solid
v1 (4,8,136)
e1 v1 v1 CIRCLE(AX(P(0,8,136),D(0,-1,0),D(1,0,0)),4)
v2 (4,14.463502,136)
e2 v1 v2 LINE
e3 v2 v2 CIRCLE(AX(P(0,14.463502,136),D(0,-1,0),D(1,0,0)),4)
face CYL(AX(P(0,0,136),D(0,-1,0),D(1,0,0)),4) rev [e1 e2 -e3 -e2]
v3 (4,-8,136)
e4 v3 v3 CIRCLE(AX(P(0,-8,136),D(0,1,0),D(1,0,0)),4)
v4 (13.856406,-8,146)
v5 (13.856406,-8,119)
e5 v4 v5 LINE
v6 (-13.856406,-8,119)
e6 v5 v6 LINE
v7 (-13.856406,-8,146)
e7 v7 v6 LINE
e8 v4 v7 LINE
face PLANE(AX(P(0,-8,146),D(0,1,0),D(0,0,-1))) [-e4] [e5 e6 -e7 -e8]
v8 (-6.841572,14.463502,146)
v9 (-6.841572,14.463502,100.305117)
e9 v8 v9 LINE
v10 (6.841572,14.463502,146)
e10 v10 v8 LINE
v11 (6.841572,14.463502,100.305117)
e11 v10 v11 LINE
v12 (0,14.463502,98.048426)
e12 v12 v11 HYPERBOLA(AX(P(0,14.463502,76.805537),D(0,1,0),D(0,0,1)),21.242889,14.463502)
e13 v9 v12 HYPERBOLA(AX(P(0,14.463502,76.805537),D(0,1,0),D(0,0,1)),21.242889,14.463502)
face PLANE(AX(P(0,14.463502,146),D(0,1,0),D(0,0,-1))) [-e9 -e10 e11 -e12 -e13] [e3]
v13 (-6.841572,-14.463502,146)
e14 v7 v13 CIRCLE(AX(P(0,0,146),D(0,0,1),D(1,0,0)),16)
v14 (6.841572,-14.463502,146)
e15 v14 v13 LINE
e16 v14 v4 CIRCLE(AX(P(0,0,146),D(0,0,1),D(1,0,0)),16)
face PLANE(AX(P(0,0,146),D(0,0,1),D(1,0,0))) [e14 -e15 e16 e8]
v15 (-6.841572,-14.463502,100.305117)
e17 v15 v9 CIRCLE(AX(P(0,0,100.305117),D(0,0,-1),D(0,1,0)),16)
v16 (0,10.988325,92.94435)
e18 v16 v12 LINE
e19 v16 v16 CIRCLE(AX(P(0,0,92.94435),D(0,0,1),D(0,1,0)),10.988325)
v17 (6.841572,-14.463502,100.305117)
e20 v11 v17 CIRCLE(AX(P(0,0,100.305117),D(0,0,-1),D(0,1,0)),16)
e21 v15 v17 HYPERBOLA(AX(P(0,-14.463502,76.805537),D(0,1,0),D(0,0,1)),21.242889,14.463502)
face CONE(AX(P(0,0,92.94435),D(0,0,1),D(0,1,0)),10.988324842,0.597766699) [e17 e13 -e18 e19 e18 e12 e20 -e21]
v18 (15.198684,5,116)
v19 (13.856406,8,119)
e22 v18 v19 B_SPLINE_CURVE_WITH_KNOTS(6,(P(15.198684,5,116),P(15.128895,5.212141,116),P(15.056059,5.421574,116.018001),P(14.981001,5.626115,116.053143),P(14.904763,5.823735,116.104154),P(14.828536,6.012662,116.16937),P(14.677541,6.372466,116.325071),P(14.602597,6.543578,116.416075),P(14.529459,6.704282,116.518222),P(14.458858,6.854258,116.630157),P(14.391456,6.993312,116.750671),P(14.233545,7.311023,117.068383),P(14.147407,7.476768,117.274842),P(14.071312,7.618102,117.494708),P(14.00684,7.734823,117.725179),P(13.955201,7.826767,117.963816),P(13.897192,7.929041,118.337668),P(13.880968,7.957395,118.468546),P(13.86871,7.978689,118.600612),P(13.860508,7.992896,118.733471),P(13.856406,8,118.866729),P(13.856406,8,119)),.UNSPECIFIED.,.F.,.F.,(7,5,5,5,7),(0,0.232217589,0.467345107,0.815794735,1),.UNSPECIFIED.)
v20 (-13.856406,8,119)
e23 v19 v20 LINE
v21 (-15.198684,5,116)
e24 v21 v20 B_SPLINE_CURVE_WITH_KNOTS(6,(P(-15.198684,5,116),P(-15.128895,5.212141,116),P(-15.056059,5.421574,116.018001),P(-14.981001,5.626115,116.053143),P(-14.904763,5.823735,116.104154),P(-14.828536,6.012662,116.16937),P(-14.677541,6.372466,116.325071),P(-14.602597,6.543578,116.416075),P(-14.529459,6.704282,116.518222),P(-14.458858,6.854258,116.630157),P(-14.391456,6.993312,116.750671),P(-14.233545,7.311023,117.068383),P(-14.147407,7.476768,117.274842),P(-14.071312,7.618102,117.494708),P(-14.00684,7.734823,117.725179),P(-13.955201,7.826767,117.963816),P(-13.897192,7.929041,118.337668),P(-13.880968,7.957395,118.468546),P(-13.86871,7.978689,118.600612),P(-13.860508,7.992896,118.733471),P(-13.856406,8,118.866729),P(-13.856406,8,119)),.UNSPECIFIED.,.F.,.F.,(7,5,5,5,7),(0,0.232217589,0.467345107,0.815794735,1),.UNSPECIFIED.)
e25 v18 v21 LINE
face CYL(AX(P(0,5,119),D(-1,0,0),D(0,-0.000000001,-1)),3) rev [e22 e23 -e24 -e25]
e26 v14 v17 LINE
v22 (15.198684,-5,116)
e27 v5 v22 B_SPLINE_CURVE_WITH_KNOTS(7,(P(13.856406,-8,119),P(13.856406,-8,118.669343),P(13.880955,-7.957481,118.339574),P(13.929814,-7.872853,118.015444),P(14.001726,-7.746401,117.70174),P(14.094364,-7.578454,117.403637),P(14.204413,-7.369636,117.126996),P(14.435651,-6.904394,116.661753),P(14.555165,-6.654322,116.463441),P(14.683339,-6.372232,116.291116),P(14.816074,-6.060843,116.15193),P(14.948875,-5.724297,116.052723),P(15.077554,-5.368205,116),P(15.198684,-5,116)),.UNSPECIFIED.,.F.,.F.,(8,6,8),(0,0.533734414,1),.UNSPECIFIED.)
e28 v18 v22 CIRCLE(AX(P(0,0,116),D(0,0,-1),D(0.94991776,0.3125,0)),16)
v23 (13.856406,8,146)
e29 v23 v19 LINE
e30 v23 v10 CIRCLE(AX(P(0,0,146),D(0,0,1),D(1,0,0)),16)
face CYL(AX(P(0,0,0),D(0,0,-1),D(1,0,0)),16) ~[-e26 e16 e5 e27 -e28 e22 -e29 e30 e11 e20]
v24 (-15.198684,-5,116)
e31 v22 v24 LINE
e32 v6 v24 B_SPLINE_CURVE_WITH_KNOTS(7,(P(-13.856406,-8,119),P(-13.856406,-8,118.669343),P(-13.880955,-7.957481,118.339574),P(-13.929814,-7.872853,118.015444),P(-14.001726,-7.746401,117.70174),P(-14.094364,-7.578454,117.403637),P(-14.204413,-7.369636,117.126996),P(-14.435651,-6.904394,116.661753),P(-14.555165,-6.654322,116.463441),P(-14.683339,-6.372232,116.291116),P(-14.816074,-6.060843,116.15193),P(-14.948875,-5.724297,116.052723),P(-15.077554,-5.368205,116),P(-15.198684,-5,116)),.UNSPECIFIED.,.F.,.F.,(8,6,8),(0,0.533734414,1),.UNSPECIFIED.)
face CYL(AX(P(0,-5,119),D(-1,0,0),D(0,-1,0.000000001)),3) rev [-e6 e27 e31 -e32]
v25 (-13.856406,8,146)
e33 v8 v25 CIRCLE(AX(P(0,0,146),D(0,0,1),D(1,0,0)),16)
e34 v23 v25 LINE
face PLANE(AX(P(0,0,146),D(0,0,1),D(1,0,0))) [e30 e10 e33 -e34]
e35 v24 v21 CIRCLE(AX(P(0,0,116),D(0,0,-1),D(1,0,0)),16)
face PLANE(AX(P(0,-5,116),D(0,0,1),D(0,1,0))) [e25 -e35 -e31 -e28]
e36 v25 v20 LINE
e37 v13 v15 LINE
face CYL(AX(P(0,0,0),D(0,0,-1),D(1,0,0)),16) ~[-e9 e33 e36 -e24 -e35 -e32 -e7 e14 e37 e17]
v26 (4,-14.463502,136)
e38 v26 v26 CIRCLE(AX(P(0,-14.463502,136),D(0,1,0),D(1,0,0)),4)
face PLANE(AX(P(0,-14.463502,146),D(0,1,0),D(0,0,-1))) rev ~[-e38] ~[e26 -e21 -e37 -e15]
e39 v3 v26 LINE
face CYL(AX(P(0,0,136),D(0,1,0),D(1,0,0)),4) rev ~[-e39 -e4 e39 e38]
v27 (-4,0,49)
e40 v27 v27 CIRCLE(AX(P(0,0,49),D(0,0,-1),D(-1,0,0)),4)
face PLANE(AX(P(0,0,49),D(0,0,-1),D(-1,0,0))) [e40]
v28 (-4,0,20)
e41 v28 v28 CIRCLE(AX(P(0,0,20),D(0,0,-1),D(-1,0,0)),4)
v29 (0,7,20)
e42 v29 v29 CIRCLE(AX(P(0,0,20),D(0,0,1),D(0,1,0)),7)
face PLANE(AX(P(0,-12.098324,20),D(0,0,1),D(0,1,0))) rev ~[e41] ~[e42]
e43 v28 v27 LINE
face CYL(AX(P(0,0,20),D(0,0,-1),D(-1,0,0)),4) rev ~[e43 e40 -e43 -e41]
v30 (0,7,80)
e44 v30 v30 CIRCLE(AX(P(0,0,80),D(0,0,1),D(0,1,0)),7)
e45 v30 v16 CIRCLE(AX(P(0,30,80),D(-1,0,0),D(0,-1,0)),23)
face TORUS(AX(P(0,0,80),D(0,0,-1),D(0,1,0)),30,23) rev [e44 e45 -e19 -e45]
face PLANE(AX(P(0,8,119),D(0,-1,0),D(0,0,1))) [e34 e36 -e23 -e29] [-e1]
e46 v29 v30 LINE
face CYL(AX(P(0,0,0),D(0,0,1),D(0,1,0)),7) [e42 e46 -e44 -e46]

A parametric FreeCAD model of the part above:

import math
import FreeCAD as App
import Part
import Sketcher
from FreeCAD import Vector
Q = App.Units.Quantity

doc = App.newDocument("Part")
body = doc.addObject("PartDesign::Body", "Body")

# Sketch on XY plane
sketch1 = body.newObject("Sketcher::SketchObject", "Sketch")
sketch1.AttachmentSupport = (doc.getObject("XY_Plane"), [""])
sketch1.MapMode = "FlatFace"
sketch1.addGeometry(Part.Circle(Vector(0, 0, 0), Vector(0, 0, 1), 16), False)
sketch1.addConstraint([
    Sketcher.Constraint("Coincident", 0, 3, -1, 1),
    Sketcher.Constraint("Diameter", 0, Q("32 mm")),
])
pad1 = body.newObject("PartDesign::Pad", "Pad")
pad1.Profile = sketch1
pad1.Length = 146

# Sketch on YZ plane
sketch2 = body.newObject("Sketcher::SketchObject", "Sketch001")
sketch2.AttachmentSupport = (doc.getObject("YZ_Plane"), [""])
sketch2.MapMode = "FlatFace"
sketch2.addGeometry([
    Part.LineSegment(Vector(-5, 116, 0), Vector(5, 116, 0)),  # 0
    Part.ArcOfCircle(Part.Circle(Vector(5, 119, 0), Vector(0, 0, 1), 3), math.radians(-90), math.radians(0)),  # 1
    Part.LineSegment(Vector(8, 119, 0), Vector(8, 146, 0)),  # 2
    Part.LineSegment(Vector(8, 146, 0), Vector(-8, 146, 0)),  # 3
    Part.LineSegment(Vector(-8, 146, 0), Vector(-8, 119, 0)),  # 4
    Part.ArcOfCircle(Part.Circle(Vector(-5, 119, 0), Vector(0, 0, 1), 3), math.radians(180), math.radians(270)),  # 5
    Part.LineSegment(Vector(-14.463502, 146, 0), Vector(-33.599122, 146, 0)),  # 6
    Part.LineSegment(Vector(-33.599122, 146, 0), Vector(-33.599122, -4.836885, 0)),  # 7
    Part.LineSegment(Vector(-33.599122, -4.836885, 0), Vector(-14.463502, -4.836885, 0)),  # 8
    Part.LineSegment(Vector(-14.463502, -4.836885, 0), Vector(-14.463502, 146, 0)),  # 9
    Part.LineSegment(Vector(33.599122, 146, 0), Vector(14.463502, 146, 0)),  # 10
    Part.LineSegment(Vector(14.463502, 146, 0), Vector(14.463502, -4.836885, 0)),  # 11
    Part.LineSegment(Vector(14.463502, -4.836885, 0), Vector(33.599122, -4.836885, 0)),  # 12
    Part.LineSegment(Vector(33.599122, -4.836885, 0), Vector(33.599122, 146, 0)),  # 13
], False)
sketch2.addConstraint([
    Sketcher.Constraint("Tangent", 0, 2, 1, 1),
    Sketcher.Constraint("Tangent", 1, 2, 2, 1),
    Sketcher.Constraint("Coincident", 2, 2, 3, 1),
    Sketcher.Constraint("Coincident", 3, 2, 4, 1),
    Sketcher.Constraint("Tangent", 4, 2, 5, 1),
    Sketcher.Constraint("Tangent", 5, 2, 0, 1),
    Sketcher.Constraint("Coincident", 6, 2, 7, 1),
    Sketcher.Constraint("Coincident", 7, 2, 8, 1),
    Sketcher.Constraint("Coincident", 8, 2, 9, 1),
    Sketcher.Constraint("Coincident", 9, 2, 6, 1),
    Sketcher.Constraint("Coincident", 10, 2, 11, 1),
    Sketcher.Constraint("Coincident", 11, 2, 12, 1),
    Sketcher.Constraint("Coincident", 12, 2, 13, 1),
    Sketcher.Constraint("Coincident", 13, 2, 10, 1),
    Sketcher.Constraint("Horizontal", 0),
    Sketcher.Constraint("Vertical", 2),
    Sketcher.Constraint("Horizontal", 3),
    Sketcher.Constraint("Vertical", 4),
    Sketcher.Constraint("Horizontal", 6),
    Sketcher.Constraint("Vertical", 7),
    Sketcher.Constraint("Horizontal", 8),
    Sketcher.Constraint("Vertical", 9),
    Sketcher.Constraint("Horizontal", 10),
    Sketcher.Constraint("Vertical", 11),
    Sketcher.Constraint("Horizontal", 12),
    Sketcher.Constraint("Vertical", 13),
    Sketcher.Constraint("Equal", 1, 5),
    Sketcher.Constraint("Symmetric", 9, 2, 10, 2, -2),
    Sketcher.Constraint("Symmetric", 7, 2, 12, 2, -2),
    Sketcher.Constraint("Horizontal", 3, 2, 6, 2),
    Sketcher.Constraint("Radius", 1, Q("3 mm")),
    Sketcher.Constraint("DistanceX", 0, 1, 0, 2, Q("10 mm")),
    Sketcher.Constraint("DistanceY", 2, 1, 2, 2, Q("27 mm")),
    Sketcher.Constraint("DistanceX", -1, 1, 1, 3, Q("5 mm")),
    Sketcher.Constraint("DistanceY", -1, 1, 1, 3, Q("119 mm")),
    Sketcher.Constraint("DistanceX", 6, 2, 6, 1, Q("19.13562 mm")),
    Sketcher.Constraint("DistanceY", 7, 2, 7, 1, Q("150.836885 mm")),
    Sketcher.Constraint("DistanceX", 6, 2, -1, 1, Q("33.599122 mm")),
])
pocket1 = body.newObject("PartDesign::Pocket", "Pocket")
pocket1.Profile = sketch2
pocket1.Type = "ThroughAll"
pocket1.Midplane = True

# Sketch on XZ plane
sketch3 = body.newObject("Sketcher::SketchObject", "Sketch002")
sketch3.AttachmentSupport = (doc.getObject("XZ_Plane"), [""])
sketch3.MapMode = "FlatFace"
sketch3.addGeometry(Part.Circle(Vector(0, 136, 0), Vector(0, 0, 1), 4), False)
sketch3.addConstraint([
    Sketcher.Constraint("PointOnObject", 0, 3, -2),
    Sketcher.Constraint("Diameter", 0, Q("8 mm")),
    Sketcher.Constraint("DistanceY", -1, 1, 0, 3, Q("136 mm")),
])
pocket2 = body.newObject("PartDesign::Pocket", "Pocket001")
pocket2.Profile = sketch3
pocket2.Type = "ThroughAll"
pocket2.Midplane = True

# Sketch on YZ plane
sketch4 = body.newObject("Sketcher::SketchObject", "Sketch003")
sketch4.AttachmentSupport = (doc.getObject("YZ_Plane"), [""])
sketch4.MapMode = "FlatFace"
sketch4.addGeometry([
    Part.LineSegment(Vector(7, 80, 0), Vector(7, 0, 0)),  # 0
    Part.LineSegment(Vector(7, 0, 0), Vector(28.197448, 0, 0)),  # 1
    Part.LineSegment(Vector(28.197448, 0, 0), Vector(28.197448, 118.219798, 0)),  # 2
    Part.LineSegment(Vector(28.197448, 118.219798, 0), Vector(10.988325, 92.94435, 0)),  # 3
    Part.ArcOfCircle(Part.Circle(Vector(30, 80, 0), Vector(0, 0, 1), 23), math.radians(145.750491), math.radians(180)),  # 4
], False)
sketch4.addConstraint([
    Sketcher.Constraint("Coincident", 0, 2, 1, 1),
    Sketcher.Constraint("Coincident", 1, 2, 2, 1),
    Sketcher.Constraint("Coincident", 2, 2, 3, 1),
    Sketcher.Constraint("Tangent", 3, 2, 4, 1),
    Sketcher.Constraint("Tangent", 4, 2, 0, 1),
    Sketcher.Constraint("Vertical", 0),
    Sketcher.Constraint("Horizontal", 1),
    Sketcher.Constraint("Vertical", 2),
    Sketcher.Constraint("PointOnObject", 0, 2, -1),
    Sketcher.Constraint("Radius", 4, Q("23 mm")),
    Sketcher.Constraint("DistanceY", 0, 2, 0, 1, Q("80 mm")),
    Sketcher.Constraint("DistanceX", -1, 1, 4, 3, Q("30 mm")),
    Sketcher.Constraint("DistanceY", 2, 1, 2, 2, Q("118.219798 mm")),
    Sketcher.Constraint("DistanceX", 1, 1, 1, 2, Q("21.197448 mm")),
])
groove = body.newObject("PartDesign::Groove", "Groove")
groove.Profile = sketch4
groove.ReferenceAxis = (sketch4, ["V_Axis"])
groove.Angle = 360

# Sketch on YZ plane
sketch5 = body.newObject("Sketcher::SketchObject", "Sketch004")
sketch5.AttachmentSupport = (doc.getObject("YZ_Plane"), [""])
sketch5.MapMode = "FlatFace"
sketch5.addGeometry([
    Part.LineSegment(Vector(12.098324, 20, 0), Vector(-12.098324, 20, 0)),
    Part.LineSegment(Vector(-12.098324, 20, 0), Vector(-12.098324, 0, 0)),
    Part.LineSegment(Vector(-12.098324, 0, 0), Vector(12.098324, 0, 0)),
    Part.LineSegment(Vector(12.098324, 0, 0), Vector(12.098324, 20, 0)),
], False)
sketch5.addConstraint([
    Sketcher.Constraint("Coincident", 0, 2, 1, 1),
    Sketcher.Constraint("Coincident", 1, 2, 2, 1),
    Sketcher.Constraint("Coincident", 2, 2, 3, 1),
    Sketcher.Constraint("Coincident", 3, 2, 0, 1),
    Sketcher.Constraint("Horizontal", 0),
    Sketcher.Constraint("Vertical", 1),
    Sketcher.Constraint("Horizontal", 2),
    Sketcher.Constraint("Vertical", 3),
    Sketcher.Constraint("Symmetric", 1, 2, 2, 2, -1, 1),
    Sketcher.Constraint("DistanceY", 1, 2, 1, 1, Q("20 mm")),
    Sketcher.Constraint("DistanceX", 0, 2, 0, 1, Q("24.196648 mm")),
])
pocket3 = body.newObject("PartDesign::Pocket", "Pocket002")
pocket3.Profile = sketch5
pocket3.Type = "ThroughAll"
pocket3.Midplane = True

# Sketch on XY plane
sketch6 = body.newObject("Sketcher::SketchObject", "Sketch005")
sketch6.AttachmentSupport = (doc.getObject("XY_Plane"), [""])
sketch6.MapMode = "FlatFace"
sketch6.AttachmentOffset = App.Placement(Vector(0, 0, 20), App.Rotation())
sketch6.addGeometry(Part.Circle(Vector(0, 0, 0), Vector(0, 0, 1), 4), False)
sketch6.addConstraint([
    Sketcher.Constraint("Coincident", 0, 3, -1, 1),
    Sketcher.Constraint("Diameter", 0, Q("8 mm")),
])
pocket4 = body.newObject("PartDesign::Pocket", "Pocket003")
pocket4.Profile = sketch6
pocket4.Length = 29
pocket4.Reversed = True

doc.recompute()
